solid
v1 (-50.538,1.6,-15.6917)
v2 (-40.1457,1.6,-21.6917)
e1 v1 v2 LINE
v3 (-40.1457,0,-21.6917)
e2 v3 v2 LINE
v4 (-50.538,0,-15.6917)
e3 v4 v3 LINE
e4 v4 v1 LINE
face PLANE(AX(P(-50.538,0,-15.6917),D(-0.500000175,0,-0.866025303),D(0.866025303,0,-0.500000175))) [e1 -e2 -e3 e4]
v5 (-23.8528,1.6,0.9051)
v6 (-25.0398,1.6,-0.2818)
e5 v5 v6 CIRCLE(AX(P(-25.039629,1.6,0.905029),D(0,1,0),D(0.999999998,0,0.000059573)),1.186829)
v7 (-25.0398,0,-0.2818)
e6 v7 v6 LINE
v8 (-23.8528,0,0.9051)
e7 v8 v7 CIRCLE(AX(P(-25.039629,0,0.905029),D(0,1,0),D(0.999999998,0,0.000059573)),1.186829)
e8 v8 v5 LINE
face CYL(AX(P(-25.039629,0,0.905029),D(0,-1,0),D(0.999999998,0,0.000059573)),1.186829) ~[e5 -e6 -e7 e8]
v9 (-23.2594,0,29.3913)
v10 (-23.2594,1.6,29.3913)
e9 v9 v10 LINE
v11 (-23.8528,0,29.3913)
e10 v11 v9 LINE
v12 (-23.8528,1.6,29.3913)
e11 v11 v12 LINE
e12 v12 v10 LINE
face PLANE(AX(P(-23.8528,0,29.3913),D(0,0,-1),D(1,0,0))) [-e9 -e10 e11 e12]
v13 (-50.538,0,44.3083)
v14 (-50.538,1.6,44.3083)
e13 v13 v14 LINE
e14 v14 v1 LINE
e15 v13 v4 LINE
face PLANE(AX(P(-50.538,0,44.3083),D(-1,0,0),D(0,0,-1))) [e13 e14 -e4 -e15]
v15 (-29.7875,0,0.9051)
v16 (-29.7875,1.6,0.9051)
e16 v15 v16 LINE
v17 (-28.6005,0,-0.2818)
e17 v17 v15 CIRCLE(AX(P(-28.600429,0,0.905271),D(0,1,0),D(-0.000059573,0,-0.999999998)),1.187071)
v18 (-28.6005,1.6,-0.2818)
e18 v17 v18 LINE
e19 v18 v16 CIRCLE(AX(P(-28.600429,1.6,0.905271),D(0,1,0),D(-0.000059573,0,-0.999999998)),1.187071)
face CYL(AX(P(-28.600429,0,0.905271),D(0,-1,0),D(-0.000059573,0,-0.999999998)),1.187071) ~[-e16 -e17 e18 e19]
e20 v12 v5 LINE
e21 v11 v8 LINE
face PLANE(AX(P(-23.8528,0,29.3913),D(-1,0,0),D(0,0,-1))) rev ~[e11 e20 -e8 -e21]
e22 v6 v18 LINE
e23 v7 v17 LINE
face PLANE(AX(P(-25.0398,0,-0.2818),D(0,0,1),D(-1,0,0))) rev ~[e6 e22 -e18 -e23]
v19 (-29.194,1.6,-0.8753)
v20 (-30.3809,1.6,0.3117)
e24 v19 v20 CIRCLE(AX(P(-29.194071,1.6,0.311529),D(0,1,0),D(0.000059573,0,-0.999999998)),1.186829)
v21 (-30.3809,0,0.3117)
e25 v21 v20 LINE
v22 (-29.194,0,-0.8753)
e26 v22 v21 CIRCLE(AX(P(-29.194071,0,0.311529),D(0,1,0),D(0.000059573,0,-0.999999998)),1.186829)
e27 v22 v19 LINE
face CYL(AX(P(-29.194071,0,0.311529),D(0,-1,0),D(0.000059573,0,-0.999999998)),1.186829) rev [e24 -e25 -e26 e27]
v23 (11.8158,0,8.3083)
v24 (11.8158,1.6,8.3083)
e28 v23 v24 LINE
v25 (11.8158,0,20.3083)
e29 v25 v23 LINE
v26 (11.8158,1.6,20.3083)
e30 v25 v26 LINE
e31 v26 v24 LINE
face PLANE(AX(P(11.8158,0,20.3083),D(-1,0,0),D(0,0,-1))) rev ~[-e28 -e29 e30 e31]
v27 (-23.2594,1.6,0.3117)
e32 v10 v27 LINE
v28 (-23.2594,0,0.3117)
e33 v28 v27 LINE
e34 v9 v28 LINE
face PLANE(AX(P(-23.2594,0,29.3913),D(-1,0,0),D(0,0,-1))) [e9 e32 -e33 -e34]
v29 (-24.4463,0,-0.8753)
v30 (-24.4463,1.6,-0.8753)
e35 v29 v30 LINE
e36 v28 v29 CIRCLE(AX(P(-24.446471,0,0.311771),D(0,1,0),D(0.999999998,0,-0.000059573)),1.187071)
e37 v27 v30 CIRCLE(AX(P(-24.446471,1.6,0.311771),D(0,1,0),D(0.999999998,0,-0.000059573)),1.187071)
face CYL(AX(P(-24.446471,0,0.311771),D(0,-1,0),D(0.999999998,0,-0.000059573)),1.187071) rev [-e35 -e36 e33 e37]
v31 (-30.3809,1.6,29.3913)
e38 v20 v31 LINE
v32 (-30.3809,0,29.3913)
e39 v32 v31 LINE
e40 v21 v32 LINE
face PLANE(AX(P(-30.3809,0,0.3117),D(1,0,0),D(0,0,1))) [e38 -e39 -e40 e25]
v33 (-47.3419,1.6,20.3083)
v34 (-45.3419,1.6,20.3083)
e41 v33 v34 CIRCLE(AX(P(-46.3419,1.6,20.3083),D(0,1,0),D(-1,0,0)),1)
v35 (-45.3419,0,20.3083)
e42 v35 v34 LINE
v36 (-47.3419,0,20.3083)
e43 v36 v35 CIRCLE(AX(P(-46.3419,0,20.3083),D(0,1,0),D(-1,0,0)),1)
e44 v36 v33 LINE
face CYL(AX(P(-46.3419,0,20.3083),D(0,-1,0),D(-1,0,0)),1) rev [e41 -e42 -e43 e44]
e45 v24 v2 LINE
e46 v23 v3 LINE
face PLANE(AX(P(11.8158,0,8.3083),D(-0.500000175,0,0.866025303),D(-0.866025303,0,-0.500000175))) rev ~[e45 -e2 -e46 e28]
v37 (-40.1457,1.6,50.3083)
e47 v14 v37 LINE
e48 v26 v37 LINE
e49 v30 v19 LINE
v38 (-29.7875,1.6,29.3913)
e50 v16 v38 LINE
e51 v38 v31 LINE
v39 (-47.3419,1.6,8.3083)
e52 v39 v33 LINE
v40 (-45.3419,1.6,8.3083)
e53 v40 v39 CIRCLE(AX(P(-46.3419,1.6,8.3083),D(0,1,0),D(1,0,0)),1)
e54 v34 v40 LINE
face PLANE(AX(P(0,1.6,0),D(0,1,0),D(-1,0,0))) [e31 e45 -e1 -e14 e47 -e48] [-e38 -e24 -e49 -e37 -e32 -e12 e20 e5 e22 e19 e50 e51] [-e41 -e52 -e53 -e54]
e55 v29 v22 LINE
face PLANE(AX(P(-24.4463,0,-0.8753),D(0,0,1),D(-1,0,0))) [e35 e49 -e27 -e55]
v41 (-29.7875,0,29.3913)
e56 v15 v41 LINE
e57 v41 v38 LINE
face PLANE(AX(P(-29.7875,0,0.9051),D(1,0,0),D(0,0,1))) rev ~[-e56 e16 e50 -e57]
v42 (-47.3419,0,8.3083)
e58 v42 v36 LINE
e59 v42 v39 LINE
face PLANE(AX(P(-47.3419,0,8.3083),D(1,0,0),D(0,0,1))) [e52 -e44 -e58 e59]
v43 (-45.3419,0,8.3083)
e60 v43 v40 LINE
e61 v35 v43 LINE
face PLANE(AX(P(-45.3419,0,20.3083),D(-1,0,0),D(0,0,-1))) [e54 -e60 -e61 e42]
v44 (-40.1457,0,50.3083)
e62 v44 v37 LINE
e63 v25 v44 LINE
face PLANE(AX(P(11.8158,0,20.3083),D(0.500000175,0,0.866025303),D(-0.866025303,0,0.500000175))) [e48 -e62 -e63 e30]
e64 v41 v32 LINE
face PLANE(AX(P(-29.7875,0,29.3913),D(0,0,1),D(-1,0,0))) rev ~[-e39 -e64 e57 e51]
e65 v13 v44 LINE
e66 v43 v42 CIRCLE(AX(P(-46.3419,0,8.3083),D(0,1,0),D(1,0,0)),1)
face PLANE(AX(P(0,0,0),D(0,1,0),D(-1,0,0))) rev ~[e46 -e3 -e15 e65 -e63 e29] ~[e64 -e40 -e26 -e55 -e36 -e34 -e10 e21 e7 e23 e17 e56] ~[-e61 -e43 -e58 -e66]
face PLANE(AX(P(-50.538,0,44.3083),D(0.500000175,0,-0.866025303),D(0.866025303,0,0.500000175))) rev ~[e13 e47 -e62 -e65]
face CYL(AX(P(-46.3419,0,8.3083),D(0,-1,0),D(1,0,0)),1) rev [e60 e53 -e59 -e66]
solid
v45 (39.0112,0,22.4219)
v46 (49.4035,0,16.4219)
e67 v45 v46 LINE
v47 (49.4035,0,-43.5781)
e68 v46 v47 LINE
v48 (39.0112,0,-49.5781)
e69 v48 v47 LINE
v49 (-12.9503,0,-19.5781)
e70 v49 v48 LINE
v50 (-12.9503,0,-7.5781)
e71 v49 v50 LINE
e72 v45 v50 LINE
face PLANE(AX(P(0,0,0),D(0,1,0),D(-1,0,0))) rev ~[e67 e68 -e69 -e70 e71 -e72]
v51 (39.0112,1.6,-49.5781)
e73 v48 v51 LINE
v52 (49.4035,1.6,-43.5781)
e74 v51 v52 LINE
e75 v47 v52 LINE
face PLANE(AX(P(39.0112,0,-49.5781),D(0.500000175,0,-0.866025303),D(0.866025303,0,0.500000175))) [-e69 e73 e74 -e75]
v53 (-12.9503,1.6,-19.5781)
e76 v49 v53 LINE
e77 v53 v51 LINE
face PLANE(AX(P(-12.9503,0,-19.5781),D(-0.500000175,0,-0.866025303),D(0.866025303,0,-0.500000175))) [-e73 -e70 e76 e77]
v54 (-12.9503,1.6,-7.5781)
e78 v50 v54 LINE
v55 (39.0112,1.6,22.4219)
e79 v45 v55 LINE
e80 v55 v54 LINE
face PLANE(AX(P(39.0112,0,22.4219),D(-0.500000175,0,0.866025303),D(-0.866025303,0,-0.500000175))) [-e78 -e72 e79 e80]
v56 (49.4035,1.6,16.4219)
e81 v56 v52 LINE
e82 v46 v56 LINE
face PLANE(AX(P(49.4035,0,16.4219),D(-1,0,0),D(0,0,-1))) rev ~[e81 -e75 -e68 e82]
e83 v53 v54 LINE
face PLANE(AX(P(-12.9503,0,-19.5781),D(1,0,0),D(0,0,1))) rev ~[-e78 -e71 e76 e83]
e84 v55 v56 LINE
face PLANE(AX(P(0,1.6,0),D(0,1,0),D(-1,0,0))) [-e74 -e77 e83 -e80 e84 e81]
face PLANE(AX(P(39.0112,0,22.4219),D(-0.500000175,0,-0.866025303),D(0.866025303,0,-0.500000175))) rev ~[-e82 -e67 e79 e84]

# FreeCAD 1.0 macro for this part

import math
import FreeCAD as App
import Part
import Sketcher
from FreeCAD import Vector
Q = App.Units.Quantity

doc = App.newDocument("Part")
body = doc.addObject("PartDesign::Body", "Body")
body.AllowCompound = True

# Sketch on XZ plane
sketch1 = body.newObject("Sketcher::SketchObject", "Sketch")
sketch1.AttachmentSupport = (doc.getObject("XZ_Plane"), [""])
sketch1.MapMode = "FlatFace"
sketch1.addGeometry([
    Part.LineSegment(Vector(-40.1, 50.3, 0), Vector(11.8, 20.3, 0)),  # 0
    Part.LineSegment(Vector(11.8, 20.3, 0), Vector(11.8, 8.3, 0)),  # 1
    Part.LineSegment(Vector(11.8, 8.3, 0), Vector(-40.1, -21.7, 0)),  # 2
    Part.LineSegment(Vector(-40.1, -21.7, 0), Vector(-50.5, -15.7, 0)),  # 3
    Part.LineSegment(Vector(-50.5, -15.7, 0), Vector(-50.5, 44.3, 0)),  # 4
    Part.LineSegment(Vector(-50.5, 44.3, 0), Vector(-40.1, 50.3, 0)),  # 5
    Part.ArcOfCircle(Part.Circle(Vector(-25, 0.9, 0), Vector(0, 0, 1), 1.2), math.radians(-90), math.radians(0)),  # 6
    Part.LineSegment(Vector(-25, -0.3, 0), Vector(-28.6, -0.3, 0)),  # 7
    Part.ArcOfCircle(Part.Circle(Vector(-28.6, 0.9, 0), Vector(0, 0, 1), 1.2), math.radians(180), math.radians(270)),  # 8
    Part.LineSegment(Vector(-29.8, 0.9, 0), Vector(-29.8, 29.4, 0)),  # 9
    Part.LineSegment(Vector(-29.8, 29.4, 0), Vector(-30.4, 29.4, 0)),  # 10
    Part.LineSegment(Vector(-30.4, 29.4, 0), Vector(-30.4, 0.3, 0)),  # 11
    Part.ArcOfCircle(Part.Circle(Vector(-29.2, 0.3, 0), Vector(0, 0, 1), 1.2), math.radians(180), math.radians(270)),  # 12
    Part.LineSegment(Vector(-29.2, -0.9, 0), Vector(-24.4, -0.9, 0)),  # 13
    Part.ArcOfCircle(Part.Circle(Vector(-24.4, 0.3, 0), Vector(0, 0, 1), 1.2), math.radians(-90), math.radians(0)),  # 14
    Part.LineSegment(Vector(-23.3, 0.3, 0), Vector(-23.3, 29.4, 0)),  # 15
    Part.LineSegment(Vector(-23.3, 29.4, 0), Vector(-23.9, 29.4, 0)),  # 16
    Part.LineSegment(Vector(-23.9, 29.4, 0), Vector(-23.9, 0.9, 0)),  # 17
    Part.LineSegment(Vector(-45.3, 8.3, 0), Vector(-45.3, 20.3, 0)),  # 18
    Part.ArcOfCircle(Part.Circle(Vector(-46.3, 20.3, 0), Vector(0, 0, 1), 1), math.radians(0), math.radians(180)),  # 19
    Part.LineSegment(Vector(-47.3, 20.3, 0), Vector(-47.3, 8.3, 0)),  # 20
    Part.ArcOfCircle(Part.Circle(Vector(-46.3, 8.3, 0), Vector(0, 0, 1), 1), math.radians(180), math.radians(360)),  # 21
    Part.LineSegment(Vector(-13, -7.6, 0), Vector(39, 22.4, 0)),  # 22
    Part.LineSegment(Vector(39, 22.4, 0), Vector(49.4, 16.4, 0)),  # 23
    Part.LineSegment(Vector(49.4, 16.4, 0), Vector(49.4, -43.6, 0)),  # 24
    Part.LineSegment(Vector(49.4, -43.6, 0), Vector(39, -49.6, 0)),  # 25
    Part.LineSegment(Vector(39, -49.6, 0), Vector(-13, -19.6, 0)),  # 26
    Part.LineSegment(Vector(-13, -19.6, 0), Vector(-13, -7.6, 0)),  # 27
], False)
sketch1.addConstraint([
    Sketcher.Constraint("Coincident", 0, 2, 1, 1),
    Sketcher.Constraint("Coincident", 1, 2, 2, 1),
    Sketcher.Constraint("Coincident", 2, 2, 3, 1),
    Sketcher.Constraint("Coincident", 3, 2, 4, 1),
    Sketcher.Constraint("Coincident", 4, 2, 5, 1),
    Sketcher.Constraint("Coincident", 5, 2, 0, 1),
    Sketcher.Constraint("Tangent", 6, 1, 7, 1),
    Sketcher.Constraint("Tangent", 7, 2, 8, 2),
    Sketcher.Constraint("Tangent", 8, 1, 9, 1),
    Sketcher.Constraint("Coincident", 9, 2, 10, 1),
    Sketcher.Constraint("Coincident", 10, 2, 11, 1),
    Sketcher.Constraint("Tangent", 11, 2, 12, 1),
    Sketcher.Constraint("Tangent", 12, 2, 13, 1),
    Sketcher.Constraint("Tangent", 13, 2, 14, 1),
    Sketcher.Constraint("Tangent", 14, 2, 15, 1),
    Sketcher.Constraint("Coincident", 15, 2, 16, 1),
    Sketcher.Constraint("Coincident", 16, 2, 17, 1),
    Sketcher.Constraint("Tangent", 17, 2, 6, 2),
    Sketcher.Constraint("Tangent", 18, 2, 19, 1),
    Sketcher.Constraint("Tangent", 19, 2, 20, 1),
    Sketcher.Constraint("Tangent", 20, 2, 21, 1),
    Sketcher.Constraint("Tangent", 21, 2, 18, 1),
    Sketcher.Constraint("Coincident", 22, 2, 23, 1),
    Sketcher.Constraint("Coincident", 23, 2, 24, 1),
    Sketcher.Constraint("Coincident", 24, 2, 25, 1),
    Sketcher.Constraint("Coincident", 25, 2, 26, 1),
    Sketcher.Constraint("Coincident", 26, 2, 27, 1),
    Sketcher.Constraint("Coincident", 27, 2, 22, 1),
    Sketcher.Constraint("Vertical", 1),
    Sketcher.Constraint("Vertical", 4),
    Sketcher.Constraint("Horizontal", 7),
    Sketcher.Constraint("Vertical", 9),
    Sketcher.Constraint("Horizontal", 10),
    Sketcher.Constraint("Vertical", 11),
    Sketcher.Constraint("Horizontal", 13),
    Sketcher.Constraint("Vertical", 15),
    Sketcher.Constraint("Horizontal", 16),
    Sketcher.Constraint("Vertical", 17),
    Sketcher.Constraint("Vertical", 18),
    Sketcher.Constraint("Vertical", 20),
    Sketcher.Constraint("Vertical", 24),
    Sketcher.Constraint("Vertical", 27),
    Sketcher.Constraint("Equal", 6, 8),
    Sketcher.Constraint("Equal", 8, 12),
    Sketcher.Constraint("Equal", 12, 14),
    Sketcher.Constraint("Parallel", 0, 3),
    Sketcher.Constraint("Parallel", 2, 5),
    Sketcher.Constraint("Parallel", 5, 22),
    Sketcher.Constraint("Parallel", 3, 23),
    Sketcher.Constraint("Parallel", 22, 25),
    Sketcher.Constraint("Parallel", 23, 26),
    Sketcher.Constraint("Horizontal", 19, 3, 0, 2),
    Sketcher.Constraint("Horizontal", 21, 3, 1, 2),
    Sketcher.Constraint("Horizontal", 10, 2, 15, 2),
    Sketcher.Constraint("Vertical", 2, 2, 5, 2),
    Sketcher.Constraint("Vertical", 22, 2, 25, 2),
    Sketcher.Constraint("Equal", 10, 16),
    Sketcher.Constraint("Equal", 4, 24),
    Sketcher.Constraint("Equal", 20, 27),
    Sketcher.Constraint("Equal", 0, 2),
    Sketcher.Constraint("Equal", 2, 22),
    Sketcher.Constraint("Radius", 19, Q("1 mm")),
    Sketcher.Constraint("DistanceY", 1, 2, 1, 1, Q("12 mm")),
    Sketcher.Constraint("DistanceY", 4, 1, 4, 2, Q("60 mm")),
    Sketcher.Constraint("Angle", 0, Q("-30 deg")),
    Sketcher.Constraint("Distance", 0, Q("60 mm")),
    Sketcher.Constraint("Radius", 6, Q("1.187 mm")),
    Sketcher.Constraint("DistanceX", 7, 2, 7, 1, Q("3.5607 mm")),
    Sketcher.Constraint("DistanceX", 10, 2, 10, 1, Q("0.5934 mm")),
    Sketcher.Constraint("DistanceY", 9, 1, 9, 2, Q("28.4862 mm")),
    Sketcher.Constraint("DistanceY", 11, 2, 11, 1, Q("29.0796 mm")),
    Sketcher.Constraint("DistanceY", -1, 1, 6, 3, Q("0.905 mm")),
    Sketcher.Constraint("DistanceX", 12, 3, -1, 1, Q("29.194 mm")),
    Sketcher.Constraint("DistanceX", 19, 3, -1, 1, Q("46.342 mm")),
    Sketcher.Constraint("DistanceX", 3, 2, -1, 1, Q("50.538 mm")),
    Sketcher.Constraint("DistanceY", -1, 1, 22, 2, Q("22.422 mm")),
    Sketcher.Constraint("DistanceY", 19, 3, 9, 2, Q("9.083 mm")),
    Sketcher.Constraint("DistanceX", 16, 2, 22, 2, Q("62.864 mm")),
])
pad1 = body.newObject("PartDesign::Pad", "Pad")
pad1.Profile = sketch1
pad1.Length = 1.6
pad1.Reversed = True

doc.recompute()
